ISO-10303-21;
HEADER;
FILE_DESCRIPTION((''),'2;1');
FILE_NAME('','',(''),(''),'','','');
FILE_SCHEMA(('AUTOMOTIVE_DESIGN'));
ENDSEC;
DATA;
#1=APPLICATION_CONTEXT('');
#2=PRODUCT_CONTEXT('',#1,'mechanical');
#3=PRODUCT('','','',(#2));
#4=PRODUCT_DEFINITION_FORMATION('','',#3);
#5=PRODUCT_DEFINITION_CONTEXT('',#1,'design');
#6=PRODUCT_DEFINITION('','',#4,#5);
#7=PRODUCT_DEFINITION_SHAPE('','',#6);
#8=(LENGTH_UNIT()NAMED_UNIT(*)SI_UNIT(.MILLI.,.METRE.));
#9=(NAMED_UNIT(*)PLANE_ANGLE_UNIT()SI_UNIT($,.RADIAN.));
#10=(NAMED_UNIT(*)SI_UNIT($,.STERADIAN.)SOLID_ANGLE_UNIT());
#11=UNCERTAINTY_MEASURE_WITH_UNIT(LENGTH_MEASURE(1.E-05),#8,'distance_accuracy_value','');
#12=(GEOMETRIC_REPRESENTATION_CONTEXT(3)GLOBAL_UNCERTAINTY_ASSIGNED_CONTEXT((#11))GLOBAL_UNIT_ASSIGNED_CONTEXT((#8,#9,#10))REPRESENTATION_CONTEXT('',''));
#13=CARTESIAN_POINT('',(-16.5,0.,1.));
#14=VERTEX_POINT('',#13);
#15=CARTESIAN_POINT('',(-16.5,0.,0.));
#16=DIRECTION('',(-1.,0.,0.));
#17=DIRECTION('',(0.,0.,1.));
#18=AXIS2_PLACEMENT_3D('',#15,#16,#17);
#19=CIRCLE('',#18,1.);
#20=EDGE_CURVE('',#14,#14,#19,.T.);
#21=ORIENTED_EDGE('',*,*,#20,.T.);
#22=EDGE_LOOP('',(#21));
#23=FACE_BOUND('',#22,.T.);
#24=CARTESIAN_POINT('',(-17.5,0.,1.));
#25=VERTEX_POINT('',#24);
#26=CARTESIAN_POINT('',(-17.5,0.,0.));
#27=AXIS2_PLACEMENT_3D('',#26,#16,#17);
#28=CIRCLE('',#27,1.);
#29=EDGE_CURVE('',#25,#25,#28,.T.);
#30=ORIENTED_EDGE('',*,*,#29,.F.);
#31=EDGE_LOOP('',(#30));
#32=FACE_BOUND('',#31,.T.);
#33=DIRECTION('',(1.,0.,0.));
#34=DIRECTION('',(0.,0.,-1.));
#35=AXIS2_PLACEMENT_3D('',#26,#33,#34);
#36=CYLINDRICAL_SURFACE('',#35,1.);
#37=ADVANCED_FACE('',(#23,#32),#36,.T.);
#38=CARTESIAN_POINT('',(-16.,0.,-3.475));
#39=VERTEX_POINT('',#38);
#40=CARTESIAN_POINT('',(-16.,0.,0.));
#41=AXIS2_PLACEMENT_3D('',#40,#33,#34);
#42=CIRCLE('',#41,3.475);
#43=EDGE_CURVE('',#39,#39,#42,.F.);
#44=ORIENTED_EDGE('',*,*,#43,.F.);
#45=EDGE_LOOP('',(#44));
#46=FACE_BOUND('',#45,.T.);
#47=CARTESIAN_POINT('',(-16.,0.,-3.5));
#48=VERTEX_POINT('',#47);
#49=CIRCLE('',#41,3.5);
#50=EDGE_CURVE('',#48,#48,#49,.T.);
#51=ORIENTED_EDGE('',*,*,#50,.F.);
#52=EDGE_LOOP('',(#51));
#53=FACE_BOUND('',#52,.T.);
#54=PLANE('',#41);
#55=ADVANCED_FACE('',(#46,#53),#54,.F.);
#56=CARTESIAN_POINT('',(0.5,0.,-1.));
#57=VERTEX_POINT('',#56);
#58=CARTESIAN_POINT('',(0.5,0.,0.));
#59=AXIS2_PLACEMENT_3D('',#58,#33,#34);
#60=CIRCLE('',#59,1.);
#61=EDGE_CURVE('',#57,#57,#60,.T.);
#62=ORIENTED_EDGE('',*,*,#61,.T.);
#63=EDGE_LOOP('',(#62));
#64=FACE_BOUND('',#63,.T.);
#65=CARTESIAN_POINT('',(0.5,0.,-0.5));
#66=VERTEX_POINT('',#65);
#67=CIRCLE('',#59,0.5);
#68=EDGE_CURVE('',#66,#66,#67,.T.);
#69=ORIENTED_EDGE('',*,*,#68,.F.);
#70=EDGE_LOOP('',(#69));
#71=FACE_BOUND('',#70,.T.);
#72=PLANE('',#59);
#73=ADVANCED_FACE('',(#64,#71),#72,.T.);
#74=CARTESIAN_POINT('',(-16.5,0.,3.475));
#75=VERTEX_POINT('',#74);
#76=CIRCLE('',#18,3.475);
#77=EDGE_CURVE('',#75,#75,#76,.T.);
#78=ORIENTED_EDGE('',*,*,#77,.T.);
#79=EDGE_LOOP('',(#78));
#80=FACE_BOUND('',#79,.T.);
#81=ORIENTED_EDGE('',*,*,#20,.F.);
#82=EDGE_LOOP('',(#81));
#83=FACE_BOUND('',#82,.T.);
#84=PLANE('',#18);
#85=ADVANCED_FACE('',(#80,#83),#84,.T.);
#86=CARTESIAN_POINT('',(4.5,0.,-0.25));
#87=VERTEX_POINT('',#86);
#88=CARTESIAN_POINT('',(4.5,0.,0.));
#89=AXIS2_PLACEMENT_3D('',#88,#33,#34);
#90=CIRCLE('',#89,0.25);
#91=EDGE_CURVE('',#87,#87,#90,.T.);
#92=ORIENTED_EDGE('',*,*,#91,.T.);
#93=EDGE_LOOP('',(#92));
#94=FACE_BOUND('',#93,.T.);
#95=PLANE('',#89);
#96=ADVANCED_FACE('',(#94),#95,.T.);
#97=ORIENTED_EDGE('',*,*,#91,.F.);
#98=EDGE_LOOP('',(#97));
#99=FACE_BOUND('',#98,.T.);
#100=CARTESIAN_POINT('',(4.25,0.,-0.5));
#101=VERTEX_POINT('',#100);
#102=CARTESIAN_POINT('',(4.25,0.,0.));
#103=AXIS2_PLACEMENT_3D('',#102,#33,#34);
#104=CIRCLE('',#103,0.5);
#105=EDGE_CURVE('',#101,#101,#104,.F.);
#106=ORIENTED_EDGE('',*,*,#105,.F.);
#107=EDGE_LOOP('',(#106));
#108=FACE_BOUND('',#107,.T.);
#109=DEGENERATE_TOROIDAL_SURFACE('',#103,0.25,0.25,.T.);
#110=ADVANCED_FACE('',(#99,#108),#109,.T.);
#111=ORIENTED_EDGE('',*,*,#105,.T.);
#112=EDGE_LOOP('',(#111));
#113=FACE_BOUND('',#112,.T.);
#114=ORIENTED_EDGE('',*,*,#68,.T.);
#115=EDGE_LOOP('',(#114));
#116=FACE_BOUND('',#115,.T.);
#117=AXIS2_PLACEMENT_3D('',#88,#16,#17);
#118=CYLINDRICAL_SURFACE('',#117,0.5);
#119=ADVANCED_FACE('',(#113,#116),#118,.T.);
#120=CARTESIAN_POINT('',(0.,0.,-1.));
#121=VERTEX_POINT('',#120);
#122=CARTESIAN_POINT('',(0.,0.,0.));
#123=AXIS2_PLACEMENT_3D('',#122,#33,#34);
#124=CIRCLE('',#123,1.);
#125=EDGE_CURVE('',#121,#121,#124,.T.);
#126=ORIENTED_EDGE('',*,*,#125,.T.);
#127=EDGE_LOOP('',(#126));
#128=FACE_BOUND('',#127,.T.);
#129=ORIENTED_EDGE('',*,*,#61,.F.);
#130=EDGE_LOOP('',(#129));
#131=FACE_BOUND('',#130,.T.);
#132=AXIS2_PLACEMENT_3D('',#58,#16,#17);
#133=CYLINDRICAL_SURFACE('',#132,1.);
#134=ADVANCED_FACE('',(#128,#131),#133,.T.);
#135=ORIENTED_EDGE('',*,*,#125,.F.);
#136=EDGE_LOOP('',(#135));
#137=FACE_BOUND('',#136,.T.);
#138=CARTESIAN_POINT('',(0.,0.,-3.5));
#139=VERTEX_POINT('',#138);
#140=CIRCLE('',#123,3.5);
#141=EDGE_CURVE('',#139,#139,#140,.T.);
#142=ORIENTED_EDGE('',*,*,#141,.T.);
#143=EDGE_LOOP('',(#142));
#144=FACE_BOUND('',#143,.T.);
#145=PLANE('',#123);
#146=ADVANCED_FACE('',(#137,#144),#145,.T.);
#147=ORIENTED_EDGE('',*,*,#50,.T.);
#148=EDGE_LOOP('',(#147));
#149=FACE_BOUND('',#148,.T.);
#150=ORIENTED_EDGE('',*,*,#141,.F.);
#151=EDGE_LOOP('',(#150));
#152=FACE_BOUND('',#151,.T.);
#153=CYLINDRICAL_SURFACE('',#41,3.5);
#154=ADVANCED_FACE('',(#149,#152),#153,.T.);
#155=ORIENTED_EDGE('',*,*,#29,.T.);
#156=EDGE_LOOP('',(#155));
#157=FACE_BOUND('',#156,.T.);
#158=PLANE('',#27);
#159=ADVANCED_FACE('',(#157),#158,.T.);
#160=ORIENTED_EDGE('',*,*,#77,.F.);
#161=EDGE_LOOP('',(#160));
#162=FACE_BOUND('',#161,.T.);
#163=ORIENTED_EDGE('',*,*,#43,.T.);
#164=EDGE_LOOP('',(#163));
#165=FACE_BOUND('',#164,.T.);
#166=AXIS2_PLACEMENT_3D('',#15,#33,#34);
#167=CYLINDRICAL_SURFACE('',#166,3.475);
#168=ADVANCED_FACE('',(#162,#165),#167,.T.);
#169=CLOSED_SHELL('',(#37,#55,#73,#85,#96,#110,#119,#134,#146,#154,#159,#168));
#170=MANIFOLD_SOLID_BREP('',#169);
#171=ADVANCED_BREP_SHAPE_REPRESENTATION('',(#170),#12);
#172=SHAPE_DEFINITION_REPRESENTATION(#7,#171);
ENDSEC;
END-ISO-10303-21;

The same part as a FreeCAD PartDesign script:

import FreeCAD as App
import Part
import Sketcher
Q = App.Units.Quantity


def edges_at(feature, points):
    """Names of the edges that pass closest to the given points."""
    edges = feature.Shape.Edges
    near = lambda p: min(range(len(edges)), key=lambda i: edges[i].distToShape(Part.Vertex(*p))[0])
    return sorted({f"Edge{near(p) + 1}" for p in points})

doc = App.newDocument("Part")
body = doc.addObject("PartDesign::Body", "Body")

sketch1 = body.newObject("Sketcher::SketchObject", "Sketch")
sketch1.AttachmentSupport = (doc.getObject("YZ_Plane"), [""])
sketch1.MapMode = "FlatFace"
sketch1.addGeometry(Part.Circle(App.Vector(0, 0, 0), App.Vector(0, 0, 1), 3.5), False)
sketch1.addConstraint(Sketcher.Constraint("Coincident", 0, 3, -1, 1))
sketch1.addConstraint(Sketcher.Constraint("Diameter", 0, Q("7 mm")))
pad1 = body.newObject("PartDesign::Pad", "Pad")
pad1.Profile = sketch1
pad1.Length = 16
pad1.Reversed = True

sketch2 = body.newObject("Sketcher::SketchObject", "Sketch001")
sketch2.AttachmentSupport = (doc.getObject("YZ_Plane"), [""])
sketch2.MapMode = "FlatFace"
sketch2.addGeometry(Part.Circle(App.Vector(0, 0, 0), App.Vector(0, 0, 1), 1), False)
sketch2.addConstraint(Sketcher.Constraint("Coincident", 0, 3, -1, 1))
sketch2.addConstraint(Sketcher.Constraint("Diameter", 0, Q("2 mm")))
pad2 = body.newObject("PartDesign::Pad", "Pad001")
pad2.Profile = sketch2
pad2.Length = 0.5

sketch3 = body.newObject("Sketcher::SketchObject", "Sketch002")
sketch3.AttachmentSupport = (doc.getObject("YZ_Plane"), [""])
sketch3.MapMode = "FlatFace"
sketch3.AttachmentOffset = App.Placement(App.Vector(0, 0, 0.5), App.Rotation())
sketch3.addGeometry(Part.Circle(App.Vector(0, 0, 0), App.Vector(0, 0, 1), 0.5), False)
sketch3.addConstraint(Sketcher.Constraint("Coincident", 0, 3, -1, 1))
sketch3.addConstraint(Sketcher.Constraint("Diameter", 0, Q("1 mm")))
pad3 = body.newObject("PartDesign::Pad", "Pad002")
pad3.Profile = sketch3
pad3.Length = 4
doc.recompute()

fillet = body.newObject("PartDesign::Fillet", "Fillet")
fillet.Base = (pad3, edges_at(pad3, [(4.5, 0, 0.5)]))
fillet.Radius = 0.25

sketch4 = body.newObject("Sketcher::SketchObject", "Sketch003")
sketch4.AttachmentSupport = (doc.getObject("YZ_Plane"), [""])
sketch4.MapMode = "FlatFace"
sketch4.AttachmentOffset = App.Placement(App.Vector(0, 0, -16), App.Rotation())
sketch4.addGeometry(Part.Circle(App.Vector(0, 0, 0), App.Vector(0, 0, 1), 3.475), False)
sketch4.addConstraint(Sketcher.Constraint("Coincident", 0, 3, -1, 1))
sketch4.addConstraint(Sketcher.Constraint("Diameter", 0, Q("6.95 mm")))
pad4 = body.newObject("PartDesign::Pad", "Pad003")
pad4.Profile = sketch4
pad4.Length = 0.5
pad4.Reversed = True

sketch5 = body.newObject("Sketcher::SketchObject", "Sketch004")
sketch5.AttachmentSupport = (doc.getObject("YZ_Plane"), [""])
sketch5.MapMode = "FlatFace"
sketch5.AttachmentOffset = App.Placement(App.Vector(0, 0, -17.5), App.Rotation())
sketch5.addGeometry(Part.Circle(App.Vector(0, 0, 0), App.Vector(0, 0, 1), 1), False)
sketch5.addConstraint(Sketcher.Constraint("Coincident", 0, 3, -1, 1))
sketch5.addConstraint(Sketcher.Constraint("Diameter", 0, Q("2 mm")))
pad5 = body.newObject("PartDesign::Pad", "Pad004")
pad5.Profile = sketch5
pad5.Length = 1

doc.recompute()
